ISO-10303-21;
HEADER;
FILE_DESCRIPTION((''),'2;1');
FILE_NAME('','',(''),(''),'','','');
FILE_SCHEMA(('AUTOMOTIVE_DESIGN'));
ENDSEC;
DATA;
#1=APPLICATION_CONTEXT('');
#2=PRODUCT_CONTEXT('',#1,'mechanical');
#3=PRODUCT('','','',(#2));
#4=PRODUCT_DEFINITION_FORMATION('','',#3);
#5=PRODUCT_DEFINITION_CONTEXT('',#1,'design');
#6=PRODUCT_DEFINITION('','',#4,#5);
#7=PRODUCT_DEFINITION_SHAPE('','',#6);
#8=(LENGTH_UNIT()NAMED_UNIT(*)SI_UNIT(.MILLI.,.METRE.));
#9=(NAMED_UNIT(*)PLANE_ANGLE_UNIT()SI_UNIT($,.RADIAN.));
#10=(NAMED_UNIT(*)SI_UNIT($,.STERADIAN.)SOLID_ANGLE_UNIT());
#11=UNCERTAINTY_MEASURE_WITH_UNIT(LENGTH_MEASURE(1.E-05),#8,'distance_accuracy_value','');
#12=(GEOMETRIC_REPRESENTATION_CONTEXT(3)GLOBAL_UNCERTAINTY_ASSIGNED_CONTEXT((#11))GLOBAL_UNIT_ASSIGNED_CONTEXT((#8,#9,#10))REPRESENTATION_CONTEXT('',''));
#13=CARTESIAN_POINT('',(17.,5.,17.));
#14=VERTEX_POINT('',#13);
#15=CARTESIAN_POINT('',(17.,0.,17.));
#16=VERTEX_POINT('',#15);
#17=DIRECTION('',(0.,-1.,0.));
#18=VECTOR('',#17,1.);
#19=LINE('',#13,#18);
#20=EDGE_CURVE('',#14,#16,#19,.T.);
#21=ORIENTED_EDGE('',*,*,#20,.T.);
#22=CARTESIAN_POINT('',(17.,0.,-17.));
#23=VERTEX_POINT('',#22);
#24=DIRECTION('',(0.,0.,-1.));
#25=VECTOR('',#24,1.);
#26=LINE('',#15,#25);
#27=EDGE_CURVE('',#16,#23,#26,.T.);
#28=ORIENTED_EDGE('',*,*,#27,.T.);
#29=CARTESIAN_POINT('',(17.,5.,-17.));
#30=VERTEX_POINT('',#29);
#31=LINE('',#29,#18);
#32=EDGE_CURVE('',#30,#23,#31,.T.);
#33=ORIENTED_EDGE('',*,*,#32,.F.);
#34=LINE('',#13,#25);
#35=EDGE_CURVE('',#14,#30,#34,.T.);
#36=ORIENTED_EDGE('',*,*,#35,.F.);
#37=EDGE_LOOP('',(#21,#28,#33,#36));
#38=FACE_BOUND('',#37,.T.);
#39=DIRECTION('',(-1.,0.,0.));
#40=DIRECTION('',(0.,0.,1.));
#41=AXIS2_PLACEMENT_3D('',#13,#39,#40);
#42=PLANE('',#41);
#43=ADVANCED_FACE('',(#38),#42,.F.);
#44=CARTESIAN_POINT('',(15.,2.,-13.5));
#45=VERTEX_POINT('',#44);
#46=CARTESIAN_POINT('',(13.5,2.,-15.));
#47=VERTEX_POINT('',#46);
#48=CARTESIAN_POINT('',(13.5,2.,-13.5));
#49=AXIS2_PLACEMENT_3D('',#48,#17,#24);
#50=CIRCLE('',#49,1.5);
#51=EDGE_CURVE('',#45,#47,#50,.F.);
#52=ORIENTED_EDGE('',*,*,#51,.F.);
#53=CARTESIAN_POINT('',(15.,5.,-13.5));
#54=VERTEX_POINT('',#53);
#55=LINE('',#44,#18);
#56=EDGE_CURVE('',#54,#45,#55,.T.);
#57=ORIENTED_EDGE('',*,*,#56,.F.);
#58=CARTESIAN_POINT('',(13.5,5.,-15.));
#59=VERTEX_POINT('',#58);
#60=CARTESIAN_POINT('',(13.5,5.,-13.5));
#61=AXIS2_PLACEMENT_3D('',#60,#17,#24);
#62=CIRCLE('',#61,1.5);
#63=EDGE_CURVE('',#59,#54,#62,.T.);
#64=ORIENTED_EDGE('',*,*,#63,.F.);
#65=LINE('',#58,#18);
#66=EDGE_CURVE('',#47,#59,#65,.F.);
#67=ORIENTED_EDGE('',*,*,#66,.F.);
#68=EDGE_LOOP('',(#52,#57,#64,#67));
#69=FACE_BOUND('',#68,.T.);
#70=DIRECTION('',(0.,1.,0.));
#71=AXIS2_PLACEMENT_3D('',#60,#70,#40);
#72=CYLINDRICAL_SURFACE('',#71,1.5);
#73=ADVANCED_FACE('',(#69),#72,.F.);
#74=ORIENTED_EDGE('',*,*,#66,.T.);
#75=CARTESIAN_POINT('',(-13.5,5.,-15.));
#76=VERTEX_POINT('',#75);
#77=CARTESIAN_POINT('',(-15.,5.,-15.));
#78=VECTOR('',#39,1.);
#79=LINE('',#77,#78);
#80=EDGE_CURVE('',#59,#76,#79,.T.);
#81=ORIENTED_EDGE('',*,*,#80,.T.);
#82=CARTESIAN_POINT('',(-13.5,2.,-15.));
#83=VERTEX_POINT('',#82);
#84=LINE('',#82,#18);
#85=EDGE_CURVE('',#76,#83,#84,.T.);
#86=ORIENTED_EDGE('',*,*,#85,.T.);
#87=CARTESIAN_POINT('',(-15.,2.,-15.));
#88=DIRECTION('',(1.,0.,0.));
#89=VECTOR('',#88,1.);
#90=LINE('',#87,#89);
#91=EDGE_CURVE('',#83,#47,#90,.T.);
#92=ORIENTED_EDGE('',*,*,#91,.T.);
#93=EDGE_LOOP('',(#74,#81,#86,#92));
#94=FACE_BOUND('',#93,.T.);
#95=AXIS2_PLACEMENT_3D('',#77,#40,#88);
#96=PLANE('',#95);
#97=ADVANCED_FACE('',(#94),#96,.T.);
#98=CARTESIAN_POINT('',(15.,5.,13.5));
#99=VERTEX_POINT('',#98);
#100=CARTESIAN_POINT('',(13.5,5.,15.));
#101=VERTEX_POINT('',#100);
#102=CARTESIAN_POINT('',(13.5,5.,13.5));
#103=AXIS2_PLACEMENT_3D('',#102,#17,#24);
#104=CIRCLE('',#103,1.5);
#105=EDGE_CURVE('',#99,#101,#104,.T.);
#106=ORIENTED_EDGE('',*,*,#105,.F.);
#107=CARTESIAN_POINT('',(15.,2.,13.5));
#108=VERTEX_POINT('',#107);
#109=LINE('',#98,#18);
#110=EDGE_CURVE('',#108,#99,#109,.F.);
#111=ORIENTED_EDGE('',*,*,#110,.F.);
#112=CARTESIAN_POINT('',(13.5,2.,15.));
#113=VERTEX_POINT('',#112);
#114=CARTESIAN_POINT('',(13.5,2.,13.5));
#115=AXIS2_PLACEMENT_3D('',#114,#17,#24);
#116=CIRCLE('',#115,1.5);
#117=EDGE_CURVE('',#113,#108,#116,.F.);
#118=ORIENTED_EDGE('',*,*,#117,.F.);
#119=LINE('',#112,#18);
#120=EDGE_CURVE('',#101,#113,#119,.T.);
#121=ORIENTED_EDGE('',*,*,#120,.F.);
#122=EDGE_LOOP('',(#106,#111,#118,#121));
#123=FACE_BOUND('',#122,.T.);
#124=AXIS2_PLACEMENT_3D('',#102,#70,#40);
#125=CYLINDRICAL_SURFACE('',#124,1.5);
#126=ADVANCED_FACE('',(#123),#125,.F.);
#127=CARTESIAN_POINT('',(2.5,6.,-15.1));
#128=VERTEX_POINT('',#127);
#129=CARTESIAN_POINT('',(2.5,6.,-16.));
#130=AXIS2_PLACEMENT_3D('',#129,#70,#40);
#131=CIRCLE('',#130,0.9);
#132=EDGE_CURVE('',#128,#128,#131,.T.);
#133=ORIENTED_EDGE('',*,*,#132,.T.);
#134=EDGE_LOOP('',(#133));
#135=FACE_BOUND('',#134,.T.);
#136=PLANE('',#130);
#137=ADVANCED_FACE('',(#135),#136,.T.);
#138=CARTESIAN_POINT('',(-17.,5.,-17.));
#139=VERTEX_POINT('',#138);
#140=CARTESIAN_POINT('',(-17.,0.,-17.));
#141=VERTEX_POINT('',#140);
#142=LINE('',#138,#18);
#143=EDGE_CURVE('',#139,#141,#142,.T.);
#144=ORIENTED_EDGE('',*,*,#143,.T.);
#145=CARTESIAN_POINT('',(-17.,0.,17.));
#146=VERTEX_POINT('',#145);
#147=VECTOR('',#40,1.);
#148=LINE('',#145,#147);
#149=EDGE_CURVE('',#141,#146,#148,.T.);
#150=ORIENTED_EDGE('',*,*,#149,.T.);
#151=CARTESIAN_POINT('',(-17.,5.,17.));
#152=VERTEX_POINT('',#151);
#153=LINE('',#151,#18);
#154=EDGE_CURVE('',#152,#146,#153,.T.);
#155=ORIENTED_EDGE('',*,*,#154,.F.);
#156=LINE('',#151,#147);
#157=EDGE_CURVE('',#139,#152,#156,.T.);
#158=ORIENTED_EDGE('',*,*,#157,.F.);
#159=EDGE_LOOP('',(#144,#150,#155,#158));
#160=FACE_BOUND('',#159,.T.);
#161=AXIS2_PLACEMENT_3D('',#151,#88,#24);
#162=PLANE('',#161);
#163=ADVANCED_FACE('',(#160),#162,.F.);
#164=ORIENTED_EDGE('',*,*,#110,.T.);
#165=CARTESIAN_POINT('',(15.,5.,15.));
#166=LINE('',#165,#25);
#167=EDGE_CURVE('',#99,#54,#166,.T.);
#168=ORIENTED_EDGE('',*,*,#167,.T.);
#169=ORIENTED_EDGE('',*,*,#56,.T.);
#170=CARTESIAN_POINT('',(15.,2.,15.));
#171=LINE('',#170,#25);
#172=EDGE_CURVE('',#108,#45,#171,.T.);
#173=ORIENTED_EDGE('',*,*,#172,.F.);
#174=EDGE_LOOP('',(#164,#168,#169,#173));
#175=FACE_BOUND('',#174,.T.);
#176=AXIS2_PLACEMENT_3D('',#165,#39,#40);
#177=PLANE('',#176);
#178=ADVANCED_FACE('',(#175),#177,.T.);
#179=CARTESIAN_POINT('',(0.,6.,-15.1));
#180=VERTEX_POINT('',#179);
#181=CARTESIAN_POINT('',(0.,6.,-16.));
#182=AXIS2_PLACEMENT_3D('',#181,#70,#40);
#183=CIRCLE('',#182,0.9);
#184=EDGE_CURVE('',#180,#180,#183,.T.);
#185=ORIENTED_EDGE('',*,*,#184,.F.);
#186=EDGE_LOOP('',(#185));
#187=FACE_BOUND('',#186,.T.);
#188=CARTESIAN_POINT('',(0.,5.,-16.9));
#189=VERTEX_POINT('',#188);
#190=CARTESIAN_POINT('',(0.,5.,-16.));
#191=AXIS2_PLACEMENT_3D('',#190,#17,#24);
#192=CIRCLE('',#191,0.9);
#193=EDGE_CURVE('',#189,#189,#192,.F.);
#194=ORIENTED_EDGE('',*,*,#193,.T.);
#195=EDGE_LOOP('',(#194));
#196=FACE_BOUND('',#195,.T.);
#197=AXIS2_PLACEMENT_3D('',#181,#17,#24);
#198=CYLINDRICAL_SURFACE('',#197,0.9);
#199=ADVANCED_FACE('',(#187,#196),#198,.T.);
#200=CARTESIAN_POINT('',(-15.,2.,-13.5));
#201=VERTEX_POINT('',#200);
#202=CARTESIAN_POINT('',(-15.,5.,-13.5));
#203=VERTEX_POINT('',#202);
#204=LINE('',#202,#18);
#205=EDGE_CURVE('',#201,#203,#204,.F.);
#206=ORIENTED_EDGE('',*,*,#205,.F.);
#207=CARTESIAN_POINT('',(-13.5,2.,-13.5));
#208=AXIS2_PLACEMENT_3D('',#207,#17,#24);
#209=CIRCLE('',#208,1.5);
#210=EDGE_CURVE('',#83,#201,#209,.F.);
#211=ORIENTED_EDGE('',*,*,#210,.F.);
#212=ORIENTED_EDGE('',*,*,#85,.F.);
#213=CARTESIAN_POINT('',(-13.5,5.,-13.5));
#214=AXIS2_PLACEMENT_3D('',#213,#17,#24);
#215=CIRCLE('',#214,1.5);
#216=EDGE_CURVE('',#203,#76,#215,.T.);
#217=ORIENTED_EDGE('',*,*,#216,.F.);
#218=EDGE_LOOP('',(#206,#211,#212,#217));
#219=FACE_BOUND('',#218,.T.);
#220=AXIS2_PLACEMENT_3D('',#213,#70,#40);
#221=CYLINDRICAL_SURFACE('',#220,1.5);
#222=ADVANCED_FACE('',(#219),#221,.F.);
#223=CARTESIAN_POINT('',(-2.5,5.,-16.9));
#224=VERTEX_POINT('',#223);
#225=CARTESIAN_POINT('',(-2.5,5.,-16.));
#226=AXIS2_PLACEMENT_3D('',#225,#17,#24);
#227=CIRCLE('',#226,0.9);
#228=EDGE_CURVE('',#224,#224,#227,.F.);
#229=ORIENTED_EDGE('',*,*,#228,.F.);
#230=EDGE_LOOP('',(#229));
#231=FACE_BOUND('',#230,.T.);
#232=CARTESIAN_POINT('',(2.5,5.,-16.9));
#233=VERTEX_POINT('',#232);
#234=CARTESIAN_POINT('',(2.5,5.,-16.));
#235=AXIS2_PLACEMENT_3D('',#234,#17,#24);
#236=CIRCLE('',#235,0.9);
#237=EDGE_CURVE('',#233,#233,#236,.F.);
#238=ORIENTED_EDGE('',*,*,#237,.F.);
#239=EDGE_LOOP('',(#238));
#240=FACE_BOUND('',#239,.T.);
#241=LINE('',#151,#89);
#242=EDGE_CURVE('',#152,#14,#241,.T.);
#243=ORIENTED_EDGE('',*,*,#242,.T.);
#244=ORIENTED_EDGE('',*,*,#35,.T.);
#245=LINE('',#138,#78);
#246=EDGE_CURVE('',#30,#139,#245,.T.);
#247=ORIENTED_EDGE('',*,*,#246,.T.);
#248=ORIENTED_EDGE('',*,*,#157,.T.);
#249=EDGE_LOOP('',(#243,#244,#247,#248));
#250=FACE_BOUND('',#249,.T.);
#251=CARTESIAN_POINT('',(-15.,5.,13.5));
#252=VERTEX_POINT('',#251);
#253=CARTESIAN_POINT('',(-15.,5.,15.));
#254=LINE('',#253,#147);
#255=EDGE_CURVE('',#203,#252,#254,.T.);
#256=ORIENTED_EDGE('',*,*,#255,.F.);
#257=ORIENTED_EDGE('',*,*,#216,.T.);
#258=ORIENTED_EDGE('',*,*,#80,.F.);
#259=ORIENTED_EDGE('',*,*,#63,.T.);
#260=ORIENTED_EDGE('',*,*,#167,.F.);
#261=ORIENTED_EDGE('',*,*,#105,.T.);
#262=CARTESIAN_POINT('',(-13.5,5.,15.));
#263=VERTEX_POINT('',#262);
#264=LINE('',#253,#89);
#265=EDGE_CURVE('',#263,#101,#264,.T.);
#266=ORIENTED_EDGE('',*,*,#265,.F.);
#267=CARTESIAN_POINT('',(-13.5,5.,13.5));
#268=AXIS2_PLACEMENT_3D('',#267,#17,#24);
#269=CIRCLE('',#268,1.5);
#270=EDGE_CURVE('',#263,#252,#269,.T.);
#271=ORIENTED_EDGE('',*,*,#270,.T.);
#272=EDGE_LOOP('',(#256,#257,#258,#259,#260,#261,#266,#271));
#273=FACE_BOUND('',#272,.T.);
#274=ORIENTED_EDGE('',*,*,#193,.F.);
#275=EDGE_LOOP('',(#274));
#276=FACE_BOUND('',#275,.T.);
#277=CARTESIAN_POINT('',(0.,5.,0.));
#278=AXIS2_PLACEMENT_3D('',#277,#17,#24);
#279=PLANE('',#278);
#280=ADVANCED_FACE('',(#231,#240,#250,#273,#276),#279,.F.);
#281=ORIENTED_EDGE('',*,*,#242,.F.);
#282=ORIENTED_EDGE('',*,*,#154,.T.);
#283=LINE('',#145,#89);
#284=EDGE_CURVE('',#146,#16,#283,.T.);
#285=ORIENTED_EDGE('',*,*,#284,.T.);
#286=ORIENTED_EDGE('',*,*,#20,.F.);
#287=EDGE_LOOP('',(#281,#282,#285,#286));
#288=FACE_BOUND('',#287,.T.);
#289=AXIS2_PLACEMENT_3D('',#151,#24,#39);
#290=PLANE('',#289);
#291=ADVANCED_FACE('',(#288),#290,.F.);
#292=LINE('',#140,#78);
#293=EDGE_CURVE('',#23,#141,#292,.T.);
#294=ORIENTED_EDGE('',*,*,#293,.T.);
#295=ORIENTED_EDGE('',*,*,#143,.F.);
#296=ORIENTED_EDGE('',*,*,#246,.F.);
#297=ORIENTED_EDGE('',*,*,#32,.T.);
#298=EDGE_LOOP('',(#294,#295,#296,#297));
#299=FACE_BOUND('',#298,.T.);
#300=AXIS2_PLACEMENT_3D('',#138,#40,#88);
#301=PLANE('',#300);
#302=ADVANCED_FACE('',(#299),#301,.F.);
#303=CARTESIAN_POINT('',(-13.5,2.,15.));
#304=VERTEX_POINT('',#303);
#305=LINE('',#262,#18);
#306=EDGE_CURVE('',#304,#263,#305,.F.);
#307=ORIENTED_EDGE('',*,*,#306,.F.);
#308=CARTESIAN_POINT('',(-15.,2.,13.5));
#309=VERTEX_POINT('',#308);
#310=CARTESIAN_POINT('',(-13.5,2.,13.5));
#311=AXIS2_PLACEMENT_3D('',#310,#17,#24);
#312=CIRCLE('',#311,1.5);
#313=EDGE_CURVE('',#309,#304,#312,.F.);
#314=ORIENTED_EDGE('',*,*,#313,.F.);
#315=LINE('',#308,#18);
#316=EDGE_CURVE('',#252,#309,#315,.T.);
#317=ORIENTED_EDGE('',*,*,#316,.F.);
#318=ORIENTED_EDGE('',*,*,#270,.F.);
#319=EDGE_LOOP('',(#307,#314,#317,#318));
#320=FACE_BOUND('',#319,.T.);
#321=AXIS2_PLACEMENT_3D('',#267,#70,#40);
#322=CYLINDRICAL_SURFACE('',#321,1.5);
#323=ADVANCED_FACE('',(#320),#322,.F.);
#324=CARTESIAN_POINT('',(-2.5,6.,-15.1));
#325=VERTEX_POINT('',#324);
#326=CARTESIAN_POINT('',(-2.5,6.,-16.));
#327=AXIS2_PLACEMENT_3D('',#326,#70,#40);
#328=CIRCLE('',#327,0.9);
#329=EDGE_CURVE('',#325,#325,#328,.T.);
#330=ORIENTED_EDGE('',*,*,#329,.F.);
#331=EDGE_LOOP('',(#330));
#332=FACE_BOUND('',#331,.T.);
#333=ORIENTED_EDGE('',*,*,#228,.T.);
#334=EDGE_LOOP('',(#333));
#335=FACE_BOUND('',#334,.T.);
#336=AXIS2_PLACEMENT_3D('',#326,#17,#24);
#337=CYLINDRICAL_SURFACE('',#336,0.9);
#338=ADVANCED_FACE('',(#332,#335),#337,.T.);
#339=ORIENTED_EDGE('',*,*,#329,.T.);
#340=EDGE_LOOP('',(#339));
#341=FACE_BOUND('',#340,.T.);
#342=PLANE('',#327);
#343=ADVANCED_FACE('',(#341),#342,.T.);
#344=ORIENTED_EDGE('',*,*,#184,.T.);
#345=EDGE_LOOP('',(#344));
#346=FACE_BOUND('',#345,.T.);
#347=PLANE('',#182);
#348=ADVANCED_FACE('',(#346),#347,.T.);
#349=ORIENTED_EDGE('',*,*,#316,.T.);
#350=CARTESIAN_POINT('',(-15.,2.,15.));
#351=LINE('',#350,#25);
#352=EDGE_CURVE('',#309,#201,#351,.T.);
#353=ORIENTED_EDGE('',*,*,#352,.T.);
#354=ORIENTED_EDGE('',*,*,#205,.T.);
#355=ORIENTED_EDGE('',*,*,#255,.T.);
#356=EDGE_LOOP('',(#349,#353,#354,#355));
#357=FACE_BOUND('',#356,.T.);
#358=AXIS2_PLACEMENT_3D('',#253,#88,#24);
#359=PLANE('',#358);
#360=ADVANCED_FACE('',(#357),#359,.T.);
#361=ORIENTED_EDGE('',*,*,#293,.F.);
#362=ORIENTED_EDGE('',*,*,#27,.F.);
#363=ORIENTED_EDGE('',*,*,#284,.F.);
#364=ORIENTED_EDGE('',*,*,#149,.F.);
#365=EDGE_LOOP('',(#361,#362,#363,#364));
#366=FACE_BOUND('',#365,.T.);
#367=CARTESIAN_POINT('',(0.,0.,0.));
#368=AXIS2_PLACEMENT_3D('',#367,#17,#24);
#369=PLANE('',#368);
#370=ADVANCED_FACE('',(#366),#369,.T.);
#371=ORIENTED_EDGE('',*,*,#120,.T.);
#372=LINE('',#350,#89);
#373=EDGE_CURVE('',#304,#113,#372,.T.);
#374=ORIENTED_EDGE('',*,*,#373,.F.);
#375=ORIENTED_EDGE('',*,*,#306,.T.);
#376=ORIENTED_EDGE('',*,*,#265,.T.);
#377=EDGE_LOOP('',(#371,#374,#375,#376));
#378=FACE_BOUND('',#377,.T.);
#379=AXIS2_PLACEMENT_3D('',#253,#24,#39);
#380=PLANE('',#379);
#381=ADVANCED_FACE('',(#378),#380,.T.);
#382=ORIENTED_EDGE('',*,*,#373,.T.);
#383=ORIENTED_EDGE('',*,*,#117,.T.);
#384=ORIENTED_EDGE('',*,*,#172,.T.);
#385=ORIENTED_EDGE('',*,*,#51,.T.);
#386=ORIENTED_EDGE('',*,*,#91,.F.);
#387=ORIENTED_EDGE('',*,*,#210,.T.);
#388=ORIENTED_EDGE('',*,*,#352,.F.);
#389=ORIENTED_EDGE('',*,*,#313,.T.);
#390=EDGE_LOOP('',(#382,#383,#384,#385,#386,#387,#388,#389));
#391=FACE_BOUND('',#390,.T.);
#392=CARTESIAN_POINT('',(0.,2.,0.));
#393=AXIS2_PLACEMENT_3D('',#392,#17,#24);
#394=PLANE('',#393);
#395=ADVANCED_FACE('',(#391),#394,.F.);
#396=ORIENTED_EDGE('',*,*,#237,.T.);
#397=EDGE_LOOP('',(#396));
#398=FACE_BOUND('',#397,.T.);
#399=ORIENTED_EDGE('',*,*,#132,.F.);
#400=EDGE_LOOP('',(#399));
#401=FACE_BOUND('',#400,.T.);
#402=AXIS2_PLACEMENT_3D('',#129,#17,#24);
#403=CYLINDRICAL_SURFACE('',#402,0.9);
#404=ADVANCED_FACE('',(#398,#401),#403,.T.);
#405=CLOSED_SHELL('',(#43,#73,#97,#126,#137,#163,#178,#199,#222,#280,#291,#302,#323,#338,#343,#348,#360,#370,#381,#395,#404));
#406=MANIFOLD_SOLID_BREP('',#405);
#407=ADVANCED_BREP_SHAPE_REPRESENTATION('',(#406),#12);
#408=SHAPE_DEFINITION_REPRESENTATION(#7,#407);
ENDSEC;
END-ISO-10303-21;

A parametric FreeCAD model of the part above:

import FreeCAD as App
import Part
import Sketcher
from FreeCAD import Vector


def edges_at(feature, points):
    """Names of the edges that pass closest to the given points."""
    edges = feature.Shape.Edges
    near = lambda p: min(range(len(edges)), key=lambda i: edges[i].distToShape(Part.Vertex(*p))[0])
    return sorted({f"Edge{near(p) + 1}" for p in points})


def add_polygon(sketch, points):
    """Adds a closed chain of lines whose ends are joined by coincident constraints."""
    first, n = sketch.GeometryCount, len(points)
    for a, b in zip(points, points[1:] + points[:1]):
        sketch.addGeometry(Part.LineSegment(App.Vector(*a, 0), App.Vector(*b, 0)), False)
    for i in range(n):
        sketch.addConstraint(Sketcher.Constraint("Coincident", first + i, 2, first + (i + 1) % n, 1))

doc = App.newDocument("Part")
params = doc.addObject("Spreadsheet::Sheet", "Params")
for row, (alias, value) in enumerate([
    ("sketch1_width", "30 mm"),
    ("pad1_length", "2 mm"),
    ("sketch2_width", "34 mm"),
    ("sketch2_width2", "30 mm"),
    ("pad2_length", "5 mm"),
    ("fillet_radius", "1.5 mm"),
    ("sketch3_diameter", "1.8 mm"),
    ("pad3_length", "1 mm"),
], start=1):
    params.set(f"A{row}", alias)
    params.set(f"B{row}", "=" + value)
    params.setAlias(f"B{row}", alias)

body = doc.addObject("PartDesign::Body", "Body")

# Sketch on XZ plane
sketch1 = body.newObject("Sketcher::SketchObject", "Sketch")
sketch1.AttachmentSupport = (doc.getObject("XZ_Plane"), [""])
sketch1.MapMode = "FlatFace"
add_polygon(sketch1, [(-15, -15), (-15, 15), (15, 15), (15, -15)])  # lines 0-3
sketch1.addConstraint(Sketcher.Constraint("Vertical", 0))
sketch1.addConstraint(Sketcher.Constraint("Horizontal", 1))
sketch1.addConstraint(Sketcher.Constraint("Vertical", 2))
sketch1.addConstraint(Sketcher.Constraint("Horizontal", 3))
sketch1.addConstraint(Sketcher.Constraint("Symmetric", 0, 2, 2, 2, -1, 1))
sketch1.addConstraint(Sketcher.Constraint("Equal", 3, 0))
sketch1.addConstraint(Sketcher.Constraint("DistanceX", 1, 1, 1, 2, 30.0))
sketch1.setExpression("Constraints[10]", "Params.sketch1_width")
pad1 = body.newObject("PartDesign::Pad", "Pad")
pad1.Profile = sketch1
pad1.setExpression("Length", "Params.pad1_length")
pad1.Reversed = True

# Sketch on XZ plane
sketch2 = body.newObject("Sketcher::SketchObject", "Sketch001")
sketch2.AttachmentSupport = (doc.getObject("XZ_Plane"), [""])
sketch2.MapMode = "FlatFace"
add_polygon(sketch2, [(-17, -17), (-17, 17), (17, 17), (17, -17)])  # lines 0-3
add_polygon(sketch2, [(15, 15), (-15, 15), (-15, -15), (15, -15)])  # lines 4-7
sketch2.addConstraint(Sketcher.Constraint("Vertical", 0))
sketch2.addConstraint(Sketcher.Constraint("Horizontal", 1))
sketch2.addConstraint(Sketcher.Constraint("Vertical", 2))
sketch2.addConstraint(Sketcher.Constraint("Horizontal", 3))
sketch2.addConstraint(Sketcher.Constraint("Horizontal", 4))
sketch2.addConstraint(Sketcher.Constraint("Vertical", 5))
sketch2.addConstraint(Sketcher.Constraint("Horizontal", 6))
sketch2.addConstraint(Sketcher.Constraint("Vertical", 7))
sketch2.addConstraint(Sketcher.Constraint("Symmetric", 0, 2, 2, 2, -1, 1))
sketch2.addConstraint(Sketcher.Constraint("Symmetric", 4, 2, 6, 2, -1, 1))
sketch2.addConstraint(Sketcher.Constraint("Equal", 3, 0))
sketch2.addConstraint(Sketcher.Constraint("Equal", 6, 5))
sketch2.addConstraint(Sketcher.Constraint("DistanceX", 1, 1, 1, 2, 34.0))
sketch2.addConstraint(Sketcher.Constraint("DistanceX", 4, 2, 4, 1, 30.0))
sketch2.setExpression("Constraints[20]", "Params.sketch2_width")
sketch2.setExpression("Constraints[21]", "Params.sketch2_width2")
pad2 = body.newObject("PartDesign::Pad", "Pad001")
pad2.Profile = sketch2
pad2.setExpression("Length", "Params.pad2_length")
pad2.Reversed = True
doc.recompute()

fillet = body.newObject("PartDesign::Fillet", "Fillet")
fillet.Base = (pad2, edges_at(pad2, [
    (15, 3.5, -15),
    (-15, 3.5, -15),
    (-15, 3.5, 15),
    (15, 3.5, 15),
]))
fillet.setExpression("Radius", "Params.fillet_radius")

# Sketch on XZ plane
sketch3 = body.newObject("Sketcher::SketchObject", "Sketch002")
sketch3.AttachmentSupport = (doc.getObject("XZ_Plane"), [""])
sketch3.MapMode = "FlatFace"
sketch3.AttachmentOffset = App.Placement(Vector(0, 0, -5), App.Rotation())
sketch3.addGeometry(Part.Circle(Vector(0, -16, 0), Vector(0, 0, 1), 0.9), False)
sketch3.addGeometry(Part.Circle(Vector(2.5, -16, 0), Vector(0, 0, 1), 0.9), False)
sketch3.addGeometry(Part.Circle(Vector(-2.5, -16, 0), Vector(0, 0, 1), 0.9), False)
sketch3.addConstraint(Sketcher.Constraint("Equal", 0, 1))
sketch3.addConstraint(Sketcher.Constraint("Equal", 1, 2))
sketch3.addConstraint(Sketcher.Constraint("Symmetric", 1, 3, 2, 3, -2))
sketch3.addConstraint(Sketcher.Constraint("PointOnObject", 0, 3, -2))
sketch3.addConstraint(Sketcher.Constraint("Horizontal", 0, 3, 1, 3))
sketch3.addConstraint(Sketcher.Constraint("Diameter", 0, 1.8))
sketch3.addConstraint(Sketcher.Constraint("DistanceY", 0, 3, -1, 1, 16.0))
sketch3.addConstraint(Sketcher.Constraint("DistanceX", 2, 3, 1, 3, 5.0))
sketch3.setExpression("Constraints[5]", "Params.sketch3_diameter")
pad3 = body.newObject("PartDesign::Pad", "Pad002")
pad3.Profile = sketch3
pad3.setExpression("Length", "Params.pad3_length")
pad3.Reversed = True

doc.recompute()
